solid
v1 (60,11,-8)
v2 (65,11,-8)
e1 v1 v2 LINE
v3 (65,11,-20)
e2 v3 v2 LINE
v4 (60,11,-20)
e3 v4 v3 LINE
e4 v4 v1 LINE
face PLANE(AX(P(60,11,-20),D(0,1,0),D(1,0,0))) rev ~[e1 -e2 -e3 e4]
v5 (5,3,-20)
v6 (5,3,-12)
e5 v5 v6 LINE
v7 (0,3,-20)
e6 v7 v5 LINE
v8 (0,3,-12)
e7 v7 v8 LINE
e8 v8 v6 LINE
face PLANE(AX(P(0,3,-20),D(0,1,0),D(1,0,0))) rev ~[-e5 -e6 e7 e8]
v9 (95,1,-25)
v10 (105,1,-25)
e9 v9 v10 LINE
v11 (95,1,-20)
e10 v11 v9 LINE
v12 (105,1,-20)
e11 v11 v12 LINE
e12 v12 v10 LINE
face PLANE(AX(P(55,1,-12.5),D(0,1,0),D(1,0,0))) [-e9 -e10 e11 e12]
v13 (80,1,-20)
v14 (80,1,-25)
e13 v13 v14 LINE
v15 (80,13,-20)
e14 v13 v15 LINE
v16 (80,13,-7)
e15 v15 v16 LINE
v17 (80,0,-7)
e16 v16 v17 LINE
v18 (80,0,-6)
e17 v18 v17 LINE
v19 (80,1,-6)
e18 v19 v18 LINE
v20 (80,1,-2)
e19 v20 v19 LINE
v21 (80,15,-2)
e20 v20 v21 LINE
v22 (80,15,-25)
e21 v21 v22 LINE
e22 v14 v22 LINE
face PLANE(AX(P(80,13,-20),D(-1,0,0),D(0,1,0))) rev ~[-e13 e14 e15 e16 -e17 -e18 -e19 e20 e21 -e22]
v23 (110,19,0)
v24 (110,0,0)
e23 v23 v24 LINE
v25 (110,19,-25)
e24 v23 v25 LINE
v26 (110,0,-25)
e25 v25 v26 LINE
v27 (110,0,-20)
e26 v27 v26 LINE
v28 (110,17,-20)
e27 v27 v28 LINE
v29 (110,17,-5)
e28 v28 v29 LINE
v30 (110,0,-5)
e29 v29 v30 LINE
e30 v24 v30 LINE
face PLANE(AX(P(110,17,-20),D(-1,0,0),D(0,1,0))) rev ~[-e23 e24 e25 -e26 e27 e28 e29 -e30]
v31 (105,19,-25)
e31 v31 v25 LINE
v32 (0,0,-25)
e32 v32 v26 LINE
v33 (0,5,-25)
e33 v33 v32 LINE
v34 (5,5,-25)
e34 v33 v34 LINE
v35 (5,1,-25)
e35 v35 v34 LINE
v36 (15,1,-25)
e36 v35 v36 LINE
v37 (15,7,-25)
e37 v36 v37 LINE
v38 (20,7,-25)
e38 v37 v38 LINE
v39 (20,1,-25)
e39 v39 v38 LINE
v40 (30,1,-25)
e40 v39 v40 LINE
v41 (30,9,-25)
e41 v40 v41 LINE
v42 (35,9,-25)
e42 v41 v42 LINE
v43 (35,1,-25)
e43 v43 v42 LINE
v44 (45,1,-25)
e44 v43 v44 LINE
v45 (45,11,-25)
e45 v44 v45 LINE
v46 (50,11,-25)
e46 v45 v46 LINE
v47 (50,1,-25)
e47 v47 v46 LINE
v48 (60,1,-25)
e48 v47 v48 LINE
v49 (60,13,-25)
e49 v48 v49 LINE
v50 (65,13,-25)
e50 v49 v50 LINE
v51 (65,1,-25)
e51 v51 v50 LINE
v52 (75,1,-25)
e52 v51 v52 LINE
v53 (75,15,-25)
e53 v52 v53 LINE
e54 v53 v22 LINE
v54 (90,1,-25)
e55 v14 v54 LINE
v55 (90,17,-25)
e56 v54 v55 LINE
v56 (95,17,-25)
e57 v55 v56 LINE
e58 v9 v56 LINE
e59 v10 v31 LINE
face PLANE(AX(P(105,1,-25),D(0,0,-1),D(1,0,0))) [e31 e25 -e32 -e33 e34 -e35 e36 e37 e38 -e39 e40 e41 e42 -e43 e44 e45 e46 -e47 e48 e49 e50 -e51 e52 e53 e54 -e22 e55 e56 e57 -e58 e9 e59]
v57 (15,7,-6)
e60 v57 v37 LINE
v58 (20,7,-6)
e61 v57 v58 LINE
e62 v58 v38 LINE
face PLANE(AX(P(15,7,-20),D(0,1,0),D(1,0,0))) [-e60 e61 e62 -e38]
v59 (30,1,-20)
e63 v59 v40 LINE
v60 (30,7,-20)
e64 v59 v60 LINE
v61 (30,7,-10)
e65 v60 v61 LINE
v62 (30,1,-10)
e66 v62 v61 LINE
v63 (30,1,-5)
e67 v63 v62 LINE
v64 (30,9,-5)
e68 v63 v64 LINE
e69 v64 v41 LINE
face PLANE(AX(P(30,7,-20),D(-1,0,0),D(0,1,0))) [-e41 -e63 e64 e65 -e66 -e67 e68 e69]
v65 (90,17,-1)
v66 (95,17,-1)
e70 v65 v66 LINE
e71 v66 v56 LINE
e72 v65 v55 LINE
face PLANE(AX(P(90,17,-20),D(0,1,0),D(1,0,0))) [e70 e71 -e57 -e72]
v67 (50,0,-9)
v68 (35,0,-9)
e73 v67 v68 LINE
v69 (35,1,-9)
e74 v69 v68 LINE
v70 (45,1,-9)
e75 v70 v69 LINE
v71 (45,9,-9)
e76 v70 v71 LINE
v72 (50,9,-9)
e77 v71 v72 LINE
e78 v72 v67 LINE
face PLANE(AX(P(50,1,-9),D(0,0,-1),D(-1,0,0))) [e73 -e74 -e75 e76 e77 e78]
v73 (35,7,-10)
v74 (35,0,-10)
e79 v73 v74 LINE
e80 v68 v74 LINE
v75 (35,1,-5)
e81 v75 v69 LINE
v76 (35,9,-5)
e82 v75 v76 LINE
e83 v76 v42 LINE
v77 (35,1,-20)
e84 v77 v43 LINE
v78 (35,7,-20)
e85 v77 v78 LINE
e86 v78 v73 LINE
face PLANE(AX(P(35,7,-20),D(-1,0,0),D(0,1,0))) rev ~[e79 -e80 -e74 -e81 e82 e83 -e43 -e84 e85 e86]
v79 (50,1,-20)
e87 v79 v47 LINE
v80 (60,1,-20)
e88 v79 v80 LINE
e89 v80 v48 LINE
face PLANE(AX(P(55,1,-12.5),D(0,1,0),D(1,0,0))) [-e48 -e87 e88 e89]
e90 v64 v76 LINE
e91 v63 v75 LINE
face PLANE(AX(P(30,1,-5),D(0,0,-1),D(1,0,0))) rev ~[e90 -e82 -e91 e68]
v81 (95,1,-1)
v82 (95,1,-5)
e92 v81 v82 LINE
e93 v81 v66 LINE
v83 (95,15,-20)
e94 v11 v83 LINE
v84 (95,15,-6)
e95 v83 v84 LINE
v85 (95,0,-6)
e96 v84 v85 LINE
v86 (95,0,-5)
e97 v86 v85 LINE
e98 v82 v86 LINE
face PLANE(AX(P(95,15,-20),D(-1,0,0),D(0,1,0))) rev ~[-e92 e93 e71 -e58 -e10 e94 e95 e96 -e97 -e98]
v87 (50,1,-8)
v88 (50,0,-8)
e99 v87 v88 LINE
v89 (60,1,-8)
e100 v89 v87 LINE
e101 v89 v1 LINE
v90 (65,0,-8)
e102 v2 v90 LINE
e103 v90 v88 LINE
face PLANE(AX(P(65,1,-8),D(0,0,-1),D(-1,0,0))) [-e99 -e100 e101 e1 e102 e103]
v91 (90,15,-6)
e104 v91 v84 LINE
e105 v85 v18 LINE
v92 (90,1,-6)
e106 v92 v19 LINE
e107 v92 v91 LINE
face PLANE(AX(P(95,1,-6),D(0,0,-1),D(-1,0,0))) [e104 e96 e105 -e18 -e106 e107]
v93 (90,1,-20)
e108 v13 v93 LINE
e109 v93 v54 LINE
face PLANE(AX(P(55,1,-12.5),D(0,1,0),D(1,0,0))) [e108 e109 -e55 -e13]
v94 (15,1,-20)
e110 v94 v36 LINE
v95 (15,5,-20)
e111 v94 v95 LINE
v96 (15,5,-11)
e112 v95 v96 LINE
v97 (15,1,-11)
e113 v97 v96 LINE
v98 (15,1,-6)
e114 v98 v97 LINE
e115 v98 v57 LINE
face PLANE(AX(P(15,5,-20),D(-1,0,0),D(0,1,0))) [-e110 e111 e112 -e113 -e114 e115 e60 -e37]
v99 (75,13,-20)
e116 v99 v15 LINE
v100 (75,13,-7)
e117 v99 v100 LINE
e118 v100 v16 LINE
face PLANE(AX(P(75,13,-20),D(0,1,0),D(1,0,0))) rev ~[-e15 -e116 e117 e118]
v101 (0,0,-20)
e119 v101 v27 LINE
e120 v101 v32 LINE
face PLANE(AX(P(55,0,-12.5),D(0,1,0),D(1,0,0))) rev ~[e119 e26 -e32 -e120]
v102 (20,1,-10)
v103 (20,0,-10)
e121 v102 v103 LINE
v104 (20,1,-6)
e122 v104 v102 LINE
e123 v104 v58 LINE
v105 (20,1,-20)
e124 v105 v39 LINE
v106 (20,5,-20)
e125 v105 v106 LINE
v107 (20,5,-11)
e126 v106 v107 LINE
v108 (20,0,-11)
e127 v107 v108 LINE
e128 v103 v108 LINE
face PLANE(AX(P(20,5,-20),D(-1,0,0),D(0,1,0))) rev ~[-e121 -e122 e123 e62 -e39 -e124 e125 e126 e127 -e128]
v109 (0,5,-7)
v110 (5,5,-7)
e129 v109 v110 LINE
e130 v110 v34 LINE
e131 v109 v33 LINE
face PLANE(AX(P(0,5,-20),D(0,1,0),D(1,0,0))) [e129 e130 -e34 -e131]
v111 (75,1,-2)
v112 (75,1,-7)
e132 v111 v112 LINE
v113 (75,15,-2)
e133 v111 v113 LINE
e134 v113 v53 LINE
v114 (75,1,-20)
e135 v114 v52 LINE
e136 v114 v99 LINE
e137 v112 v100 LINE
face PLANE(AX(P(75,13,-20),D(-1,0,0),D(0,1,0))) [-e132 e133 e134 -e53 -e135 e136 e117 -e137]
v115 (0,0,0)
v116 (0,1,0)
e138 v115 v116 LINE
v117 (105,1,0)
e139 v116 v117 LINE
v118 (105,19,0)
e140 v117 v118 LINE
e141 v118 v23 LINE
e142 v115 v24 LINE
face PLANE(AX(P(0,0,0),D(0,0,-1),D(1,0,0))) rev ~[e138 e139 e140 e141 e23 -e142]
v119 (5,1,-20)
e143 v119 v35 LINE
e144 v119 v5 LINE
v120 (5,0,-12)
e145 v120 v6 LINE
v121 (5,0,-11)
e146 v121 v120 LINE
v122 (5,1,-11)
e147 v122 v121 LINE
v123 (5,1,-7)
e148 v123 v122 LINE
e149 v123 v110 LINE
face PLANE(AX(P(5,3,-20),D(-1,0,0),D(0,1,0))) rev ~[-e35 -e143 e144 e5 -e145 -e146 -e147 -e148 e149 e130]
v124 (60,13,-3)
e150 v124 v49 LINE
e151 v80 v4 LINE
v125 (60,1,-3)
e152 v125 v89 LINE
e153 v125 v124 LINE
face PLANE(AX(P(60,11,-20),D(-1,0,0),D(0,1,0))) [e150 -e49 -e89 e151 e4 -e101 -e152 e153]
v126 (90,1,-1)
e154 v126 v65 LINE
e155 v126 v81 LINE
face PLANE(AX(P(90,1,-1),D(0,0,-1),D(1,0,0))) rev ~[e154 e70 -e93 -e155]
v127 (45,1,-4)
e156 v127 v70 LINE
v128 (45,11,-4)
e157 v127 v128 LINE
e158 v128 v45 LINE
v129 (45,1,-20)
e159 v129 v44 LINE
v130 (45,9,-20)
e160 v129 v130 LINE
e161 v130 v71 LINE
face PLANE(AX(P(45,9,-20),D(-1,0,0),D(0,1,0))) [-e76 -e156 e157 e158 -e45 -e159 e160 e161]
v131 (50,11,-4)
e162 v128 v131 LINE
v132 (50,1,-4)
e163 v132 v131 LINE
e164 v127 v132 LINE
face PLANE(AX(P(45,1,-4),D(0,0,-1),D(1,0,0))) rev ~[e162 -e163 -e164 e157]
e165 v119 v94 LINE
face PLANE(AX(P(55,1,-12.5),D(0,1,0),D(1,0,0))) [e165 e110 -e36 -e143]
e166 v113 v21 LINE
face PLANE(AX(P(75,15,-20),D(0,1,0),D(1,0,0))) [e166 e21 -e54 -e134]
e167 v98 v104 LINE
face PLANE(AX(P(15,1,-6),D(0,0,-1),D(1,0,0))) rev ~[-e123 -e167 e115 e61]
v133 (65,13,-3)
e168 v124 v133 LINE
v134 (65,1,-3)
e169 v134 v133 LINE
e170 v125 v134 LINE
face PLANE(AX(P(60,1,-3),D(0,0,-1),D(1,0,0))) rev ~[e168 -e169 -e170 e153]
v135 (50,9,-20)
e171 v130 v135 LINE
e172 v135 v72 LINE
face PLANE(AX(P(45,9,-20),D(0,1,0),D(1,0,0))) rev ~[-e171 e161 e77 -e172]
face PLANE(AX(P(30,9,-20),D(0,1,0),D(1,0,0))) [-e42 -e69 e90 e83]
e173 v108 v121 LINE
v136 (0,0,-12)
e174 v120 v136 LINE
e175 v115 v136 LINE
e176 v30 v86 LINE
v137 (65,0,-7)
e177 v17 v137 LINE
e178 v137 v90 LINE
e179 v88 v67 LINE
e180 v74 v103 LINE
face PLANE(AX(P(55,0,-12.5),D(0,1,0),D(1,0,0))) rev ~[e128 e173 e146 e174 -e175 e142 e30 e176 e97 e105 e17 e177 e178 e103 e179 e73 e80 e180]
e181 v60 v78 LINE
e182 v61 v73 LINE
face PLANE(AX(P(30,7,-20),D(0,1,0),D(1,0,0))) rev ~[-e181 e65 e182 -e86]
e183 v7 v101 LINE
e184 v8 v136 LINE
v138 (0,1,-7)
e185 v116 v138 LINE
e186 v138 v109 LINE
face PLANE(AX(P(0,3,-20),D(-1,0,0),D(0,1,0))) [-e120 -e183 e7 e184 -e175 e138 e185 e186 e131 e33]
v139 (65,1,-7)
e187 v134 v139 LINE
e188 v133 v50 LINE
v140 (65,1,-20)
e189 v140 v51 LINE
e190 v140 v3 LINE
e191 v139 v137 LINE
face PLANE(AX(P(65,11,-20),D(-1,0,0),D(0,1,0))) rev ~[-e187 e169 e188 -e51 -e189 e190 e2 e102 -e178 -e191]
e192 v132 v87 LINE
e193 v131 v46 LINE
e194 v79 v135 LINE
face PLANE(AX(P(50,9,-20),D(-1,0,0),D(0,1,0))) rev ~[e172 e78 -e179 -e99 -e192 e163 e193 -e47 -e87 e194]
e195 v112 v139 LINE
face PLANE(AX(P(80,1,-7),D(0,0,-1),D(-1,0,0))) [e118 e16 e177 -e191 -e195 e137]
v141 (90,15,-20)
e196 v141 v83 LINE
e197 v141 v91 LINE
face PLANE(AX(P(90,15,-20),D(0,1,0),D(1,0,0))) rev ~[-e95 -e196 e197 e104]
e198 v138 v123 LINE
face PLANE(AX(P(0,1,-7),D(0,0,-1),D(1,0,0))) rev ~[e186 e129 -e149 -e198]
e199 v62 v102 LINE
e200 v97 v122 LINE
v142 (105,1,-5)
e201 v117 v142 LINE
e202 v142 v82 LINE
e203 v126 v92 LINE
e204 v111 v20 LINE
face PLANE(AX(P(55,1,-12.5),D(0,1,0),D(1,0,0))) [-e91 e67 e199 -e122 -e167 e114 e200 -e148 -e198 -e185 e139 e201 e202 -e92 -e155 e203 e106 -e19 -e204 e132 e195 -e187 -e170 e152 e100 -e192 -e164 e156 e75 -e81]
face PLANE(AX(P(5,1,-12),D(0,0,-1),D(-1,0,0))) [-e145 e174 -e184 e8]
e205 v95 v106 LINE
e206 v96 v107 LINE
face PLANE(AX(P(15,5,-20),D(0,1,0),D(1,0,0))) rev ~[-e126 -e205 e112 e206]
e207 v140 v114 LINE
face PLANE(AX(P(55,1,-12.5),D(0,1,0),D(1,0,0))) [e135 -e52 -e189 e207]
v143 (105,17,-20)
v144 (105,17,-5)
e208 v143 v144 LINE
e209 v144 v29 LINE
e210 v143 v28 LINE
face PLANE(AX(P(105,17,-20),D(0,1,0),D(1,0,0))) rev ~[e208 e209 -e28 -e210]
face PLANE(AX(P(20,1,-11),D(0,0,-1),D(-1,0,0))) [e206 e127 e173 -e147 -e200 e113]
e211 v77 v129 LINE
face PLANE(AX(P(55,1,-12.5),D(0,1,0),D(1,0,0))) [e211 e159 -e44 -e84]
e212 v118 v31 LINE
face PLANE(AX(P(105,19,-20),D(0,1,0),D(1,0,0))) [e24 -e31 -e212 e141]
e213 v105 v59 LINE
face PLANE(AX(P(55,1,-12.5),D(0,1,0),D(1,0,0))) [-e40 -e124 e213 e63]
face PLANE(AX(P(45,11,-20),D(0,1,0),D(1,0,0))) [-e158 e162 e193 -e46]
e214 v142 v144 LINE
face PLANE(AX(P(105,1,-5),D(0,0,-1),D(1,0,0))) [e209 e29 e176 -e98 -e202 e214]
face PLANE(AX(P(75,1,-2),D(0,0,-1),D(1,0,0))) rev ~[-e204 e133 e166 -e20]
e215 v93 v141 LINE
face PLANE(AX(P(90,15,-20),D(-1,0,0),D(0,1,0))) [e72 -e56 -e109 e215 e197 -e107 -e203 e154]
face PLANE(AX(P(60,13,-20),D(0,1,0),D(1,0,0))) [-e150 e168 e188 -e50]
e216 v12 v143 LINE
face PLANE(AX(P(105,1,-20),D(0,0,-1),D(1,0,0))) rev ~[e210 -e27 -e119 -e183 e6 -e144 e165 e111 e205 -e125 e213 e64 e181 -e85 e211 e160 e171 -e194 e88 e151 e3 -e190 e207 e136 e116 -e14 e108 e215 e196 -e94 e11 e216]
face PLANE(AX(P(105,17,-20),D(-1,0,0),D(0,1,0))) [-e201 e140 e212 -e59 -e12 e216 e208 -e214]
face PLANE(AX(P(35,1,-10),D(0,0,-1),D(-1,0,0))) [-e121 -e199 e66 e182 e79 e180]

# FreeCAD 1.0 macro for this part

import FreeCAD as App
import Part
import Sketcher
from FreeCAD import Vector

doc = App.newDocument("Part")
body = doc.addObject("PartDesign::Body", "Body")

# Sketch on XZ plane
sketch1 = body.newObject("Sketcher::SketchObject", "Sketch")
sketch1.AttachmentSupport = (doc.getObject("XZ_Plane"), [""])
sketch1.MapMode = "FlatFace"
sketch1.addGeometry(Part.LineSegment(Vector(0, -25, 0), Vector(0, 0, 0)), False)
sketch1.addGeometry(Part.LineSegment(Vector(0, 0, 0), Vector(110, 0, 0)), False)
sketch1.addGeometry(Part.LineSegment(Vector(110, 0, 0), Vector(110, -25, 0)), False)
sketch1.addGeometry(Part.LineSegment(Vector(110, -25, 0), Vector(0, -25, 0)), False)
sketch1.addConstraint(Sketcher.Constraint("Coincident", 0, 2, 1, 1))
sketch1.addConstraint(Sketcher.Constraint("Coincident", 1, 2, 2, 1))
sketch1.addConstraint(Sketcher.Constraint("Coincident", 2, 2, 3, 1))
sketch1.addConstraint(Sketcher.Constraint("Coincident", 3, 2, 0, 1))
sketch1.addConstraint(Sketcher.Constraint("Vertical", 0))
sketch1.addConstraint(Sketcher.Constraint("Horizontal", 1))
sketch1.addConstraint(Sketcher.Constraint("Vertical", 2))
sketch1.addConstraint(Sketcher.Constraint("Horizontal", 3))
sketch1.addConstraint(Sketcher.Constraint("Coincident", 0, 2, -1, 1))
sketch1.addConstraint(Sketcher.Constraint("DistanceX", 1, 1, 1, 2, 110.0))
sketch1.addConstraint(Sketcher.Constraint("DistanceY", 0, 1, 0, 2, 25.0))
pad1 = body.newObject("PartDesign::Pad", "Pad")
pad1.Profile = sketch1
pad1.Length = 1
pad1.Reversed = True

# Sketch on XZ plane
sketch2 = body.newObject("Sketcher::SketchObject", "Sketch001")
sketch2.AttachmentSupport = (doc.getObject("XZ_Plane"), [""])
sketch2.MapMode = "FlatFace"
sketch2.AttachmentOffset = App.Placement(Vector(0, 0, -1), App.Rotation())
sketch2.addGeometry(Part.LineSegment(Vector(0, -25, 0), Vector(0, -20, 0)), False)
sketch2.addGeometry(Part.LineSegment(Vector(0, -20, 0), Vector(5, -20, 0)), False)
sketch2.addGeometry(Part.LineSegment(Vector(5, -20, 0), Vector(5, -25, 0)), False)
sketch2.addGeometry(Part.LineSegment(Vector(5, -25, 0), Vector(0, -25, 0)), False)
sketch2.addGeometry(Part.LineSegment(Vector(0, -12, 0), Vector(0, -7, 0)), False)
sketch2.addGeometry(Part.LineSegment(Vector(0, -7, 0), Vector(5, -7, 0)), False)
sketch2.addGeometry(Part.LineSegment(Vector(5, -7, 0), Vector(5, -12, 0)), False)
sketch2.addGeometry(Part.LineSegment(Vector(5, -12, 0), Vector(0, -12, 0)), False)
sketch2.addConstraint(Sketcher.Constraint("Coincident", 0, 2, 1, 1))
sketch2.addConstraint(Sketcher.Constraint("Coincident", 1, 2, 2, 1))
sketch2.addConstraint(Sketcher.Constraint("Coincident", 2, 2, 3, 1))
sketch2.addConstraint(Sketcher.Constraint("Coincident", 3, 2, 0, 1))
sketch2.addConstraint(Sketcher.Constraint("Coincident", 4, 2, 5, 1))
sketch2.addConstraint(Sketcher.Constraint("Coincident", 5, 2, 6, 1))
sketch2.addConstraint(Sketcher.Constraint("Coincident", 6, 2, 7, 1))
sketch2.addConstraint(Sketcher.Constraint("Coincident", 7, 2, 4, 1))
sketch2.addConstraint(Sketcher.Constraint("Vertical", 0))
sketch2.addConstraint(Sketcher.Constraint("Horizontal", 1))
sketch2.addConstraint(Sketcher.Constraint("Vertical", 2))
sketch2.addConstraint(Sketcher.Constraint("Horizontal", 3))
sketch2.addConstraint(Sketcher.Constraint("Vertical", 4))
sketch2.addConstraint(Sketcher.Constraint("Horizontal", 5))
sketch2.addConstraint(Sketcher.Constraint("Vertical", 6))
sketch2.addConstraint(Sketcher.Constraint("Horizontal", 7))
sketch2.addConstraint(Sketcher.Constraint("PointOnObject", 0, 2, -2))
sketch2.addConstraint(Sketcher.Constraint("PointOnObject", 4, 2, -2))
sketch2.addConstraint(Sketcher.Constraint("Vertical", 2, 2, 5, 2))
sketch2.addConstraint(Sketcher.Constraint("Equal", 7, 0))
sketch2.addConstraint(Sketcher.Constraint("Equal", 2, 4))
sketch2.addConstraint(Sketcher.Constraint("DistanceX", 1, 1, 1, 2, 5.0))
sketch2.addConstraint(Sketcher.Constraint("DistanceY", 0, 2, -1, 1, 20.0))
sketch2.addConstraint(Sketcher.Constraint("DistanceY", 4, 2, -1, 1, 7.0))
pad2 = body.newObject("PartDesign::Pad", "Pad001")
pad2.Profile = sketch2
pad2.Length = 4
pad2.Reversed = True

# Sketch on XZ plane
sketch3 = body.newObject("Sketcher::SketchObject", "Sketch002")
sketch3.AttachmentSupport = (doc.getObject("XZ_Plane"), [""])
sketch3.MapMode = "FlatFace"
sketch3.AttachmentOffset = App.Placement(Vector(0, 0, -1), App.Rotation())
sketch3.addGeometry(Part.LineSegment(Vector(15, -25, 0), Vector(15, -20, 0)), False)
sketch3.addGeometry(Part.LineSegment(Vector(15, -20, 0), Vector(20, -20, 0)), False)
sketch3.addGeometry(Part.LineSegment(Vector(20, -20, 0), Vector(20, -25, 0)), False)
sketch3.addGeometry(Part.LineSegment(Vector(20, -25, 0), Vector(15, -25, 0)), False)
sketch3.addGeometry(Part.LineSegment(Vector(15, -11, 0), Vector(15, -6, 0)), False)
sketch3.addGeometry(Part.LineSegment(Vector(15, -6, 0), Vector(20, -6, 0)), False)
sketch3.addGeometry(Part.LineSegment(Vector(20, -6, 0), Vector(20, -11, 0)), False)
sketch3.addGeometry(Part.LineSegment(Vector(20, -11, 0), Vector(15, -11, 0)), False)
sketch3.addConstraint(Sketcher.Constraint("Coincident", 0, 2, 1, 1))
sketch3.addConstraint(Sketcher.Constraint("Coincident", 1, 2, 2, 1))
sketch3.addConstraint(Sketcher.Constraint("Coincident", 2, 2, 3, 1))
sketch3.addConstraint(Sketcher.Constraint("Coincident", 3, 2, 0, 1))
sketch3.addConstraint(Sketcher.Constraint("Coincident", 4, 2, 5, 1))
sketch3.addConstraint(Sketcher.Constraint("Coincident", 5, 2, 6, 1))
sketch3.addConstraint(Sketcher.Constraint("Coincident", 6, 2, 7, 1))
sketch3.addConstraint(Sketcher.Constraint("Coincident", 7, 2, 4, 1))
sketch3.addConstraint(Sketcher.Constraint("Vertical", 0))
sketch3.addConstraint(Sketcher.Constraint("Horizontal", 1))
sketch3.addConstraint(Sketcher.Constraint("Vertical", 2))
sketch3.addConstraint(Sketcher.Constraint("Horizontal", 3))
sketch3.addConstraint(Sketcher.Constraint("Vertical", 4))
sketch3.addConstraint(Sketcher.Constraint("Horizontal", 5))
sketch3.addConstraint(Sketcher.Constraint("Vertical", 6))
sketch3.addConstraint(Sketcher.Constraint("Horizontal", 7))
sketch3.addConstraint(Sketcher.Constraint("Vertical", 3, 2, 4, 2))
sketch3.addConstraint(Sketcher.Constraint("Vertical", 2, 2, 5, 2))
sketch3.addConstraint(Sketcher.Constraint("Equal", 7, 0))
sketch3.addConstraint(Sketcher.Constraint("Equal", 2, 4))
sketch3.addConstraint(Sketcher.Constraint("DistanceX", 1, 1, 1, 2, 5.0))
sketch3.addConstraint(Sketcher.Constraint("DistanceX", -1, 1, 0, 2, 15.0))
sketch3.addConstraint(Sketcher.Constraint("DistanceY", 0, 2, -1, 1, 20.0))
sketch3.addConstraint(Sketcher.Constraint("DistanceY", 4, 2, -1, 1, 6.0))
pad3 = body.newObject("PartDesign::Pad", "Pad002")
pad3.Profile = sketch3
pad3.Length = 6
pad3.Reversed = True

# Sketch on XZ plane
sketch4 = body.newObject("Sketcher::SketchObject", "Sketch003")
sketch4.AttachmentSupport = (doc.getObject("XZ_Plane"), [""])
sketch4.MapMode = "FlatFace"
sketch4.AttachmentOffset = App.Placement(Vector(0, 0, -1), App.Rotation())
sketch4.addGeometry(Part.LineSegment(Vector(30, -25, 0), Vector(30, -20, 0)), False)
sketch4.addGeometry(Part.LineSegment(Vector(30, -20, 0), Vector(35, -20, 0)), False)
sketch4.addGeometry(Part.LineSegment(Vector(35, -20, 0), Vector(35, -25, 0)), False)
sketch4.addGeometry(Part.LineSegment(Vector(35, -25, 0), Vector(30, -25, 0)), False)
sketch4.addGeometry(Part.LineSegment(Vector(30, -10, 0), Vector(30, -5, 0)), False)
sketch4.addGeometry(Part.LineSegment(Vector(30, -5, 0), Vector(35, -5, 0)), False)
sketch4.addGeometry(Part.LineSegment(Vector(35, -5, 0), Vector(35, -10, 0)), False)
sketch4.addGeometry(Part.LineSegment(Vector(35, -10, 0), Vector(30, -10, 0)), False)
sketch4.addConstraint(Sketcher.Constraint("Coincident", 0, 2, 1, 1))
sketch4.addConstraint(Sketcher.Constraint("Coincident", 1, 2, 2, 1))
sketch4.addConstraint(Sketcher.Constraint("Coincident", 2, 2, 3, 1))
sketch4.addConstraint(Sketcher.Constraint("Coincident", 3, 2, 0, 1))
sketch4.addConstraint(Sketcher.Constraint("Coincident", 4, 2, 5, 1))
sketch4.addConstraint(Sketcher.Constraint("Coincident", 5, 2, 6, 1))
sketch4.addConstraint(Sketcher.Constraint("Coincident", 6, 2, 7, 1))
sketch4.addConstraint(Sketcher.Constraint("Coincident", 7, 2, 4, 1))
sketch4.addConstraint(Sketcher.Constraint("Vertical", 0))
sketch4.addConstraint(Sketcher.Constraint("Horizontal", 1))
sketch4.addConstraint(Sketcher.Constraint("Vertical", 2))
sketch4.addConstraint(Sketcher.Constraint("Horizontal", 3))
sketch4.addConstraint(Sketcher.Constraint("Vertical", 4))
sketch4.addConstraint(Sketcher.Constraint("Horizontal", 5))
sketch4.addConstraint(Sketcher.Constraint("Vertical", 6))
sketch4.addConstraint(Sketcher.Constraint("Horizontal", 7))
sketch4.addConstraint(Sketcher.Constraint("Vertical", 3, 2, 4, 2))
sketch4.addConstraint(Sketcher.Constraint("Vertical", 2, 2, 5, 2))
sketch4.addConstraint(Sketcher.Constraint("Equal", 7, 0))
sketch4.addConstraint(Sketcher.Constraint("Equal", 2, 4))
sketch4.addConstraint(Sketcher.Constraint("DistanceX", 1, 1, 1, 2, 5.0))
sketch4.addConstraint(Sketcher.Constraint("DistanceX", -1, 1, 0, 2, 30.0))
sketch4.addConstraint(Sketcher.Constraint("DistanceY", 0, 2, -1, 1, 20.0))
sketch4.addConstraint(Sketcher.Constraint("DistanceY", 4, 2, -1, 1, 5.0))
pad4 = body.newObject("PartDesign::Pad", "Pad003")
pad4.Profile = sketch4
pad4.Length = 8
pad4.Reversed = True

# Sketch on XZ plane
sketch5 = body.newObject("Sketcher::SketchObject", "Sketch004")
sketch5.AttachmentSupport = (doc.getObject("XZ_Plane"), [""])
sketch5.MapMode = "FlatFace"
sketch5.AttachmentOffset = App.Placement(Vector(0, 0, -1), App.Rotation())
sketch5.addGeometry(Part.LineSegment(Vector(45, -25, 0), Vector(45, -20, 0)), False)
sketch5.addGeometry(Part.LineSegment(Vector(45, -20, 0), Vector(50, -20, 0)), False)
sketch5.addGeometry(Part.LineSegment(Vector(50, -20, 0), Vector(50, -25, 0)), False)
sketch5.addGeometry(Part.LineSegment(Vector(50, -25, 0), Vector(45, -25, 0)), False)
sketch5.addGeometry(Part.LineSegment(Vector(45, -9, 0), Vector(45, -4, 0)), False)
sketch5.addGeometry(Part.LineSegment(Vector(45, -4, 0), Vector(50, -4, 0)), False)
sketch5.addGeometry(Part.LineSegment(Vector(50, -4, 0), Vector(50, -9, 0)), False)
sketch5.addGeometry(Part.LineSegment(Vector(50, -9, 0), Vector(45, -9, 0)), False)
sketch5.addConstraint(Sketcher.Constraint("Coincident", 0, 2, 1, 1))
sketch5.addConstraint(Sketcher.Constraint("Coincident", 1, 2, 2, 1))
sketch5.addConstraint(Sketcher.Constraint("Coincident", 2, 2, 3, 1))
sketch5.addConstraint(Sketcher.Constraint("Coincident", 3, 2, 0, 1))
sketch5.addConstraint(Sketcher.Constraint("Coincident", 4, 2, 5, 1))
sketch5.addConstraint(Sketcher.Constraint("Coincident", 5, 2, 6, 1))
sketch5.addConstraint(Sketcher.Constraint("Coincident", 6, 2, 7, 1))
sketch5.addConstraint(Sketcher.Constraint("Coincident", 7, 2, 4, 1))
sketch5.addConstraint(Sketcher.Constraint("Vertical", 0))
sketch5.addConstraint(Sketcher.Constraint("Horizontal", 1))
sketch5.addConstraint(Sketcher.Constraint("Vertical", 2))
sketch5.addConstraint(Sketcher.Constraint("Horizontal", 3))
sketch5.addConstraint(Sketcher.Constraint("Vertical", 4))
sketch5.addConstraint(Sketcher.Constraint("Horizontal", 5))
sketch5.addConstraint(Sketcher.Constraint("Vertical", 6))
sketch5.addConstraint(Sketcher.Constraint("Horizontal", 7))
sketch5.addConstraint(Sketcher.Constraint("Vertical", 3, 2, 4, 2))
sketch5.addConstraint(Sketcher.Constraint("Vertical", 2, 2, 5, 2))
sketch5.addConstraint(Sketcher.Constraint("Equal", 7, 0))
sketch5.addConstraint(Sketcher.Constraint("Equal", 2, 4))
sketch5.addConstraint(Sketcher.Constraint("DistanceX", 1, 1, 1, 2, 5.0))
sketch5.addConstraint(Sketcher.Constraint("DistanceX", -1, 1, 0, 2, 45.0))
sketch5.addConstraint(Sketcher.Constraint("DistanceY", 0, 2, -1, 1, 20.0))
sketch5.addConstraint(Sketcher.Constraint("DistanceY", 4, 2, -1, 1, 4.0))
pad5 = body.newObject("PartDesign::Pad", "Pad004")
pad5.Profile = sketch5
pad5.Length = 10
pad5.Reversed = True

# Sketch on XZ plane
sketch6 = body.newObject("Sketcher::SketchObject", "Sketch005")
sketch6.AttachmentSupport = (doc.getObject("XZ_Plane"), [""])
sketch6.MapMode = "FlatFace"
sketch6.AttachmentOffset = App.Placement(Vector(0, 0, -1), App.Rotation())
sketch6.addGeometry(Part.LineSegment(Vector(60, -25, 0), Vector(60, -20, 0)), False)
sketch6.addGeometry(Part.LineSegment(Vector(60, -20, 0), Vector(65, -20, 0)), False)
sketch6.addGeometry(Part.LineSegment(Vector(65, -20, 0), Vector(65, -25, 0)), False)
sketch6.addGeometry(Part.LineSegment(Vector(65, -25, 0), Vector(60, -25, 0)), False)
sketch6.addGeometry(Part.LineSegment(Vector(60, -8, 0), Vector(60, -3, 0)), False)
sketch6.addGeometry(Part.LineSegment(Vector(60, -3, 0), Vector(65, -3, 0)), False)
sketch6.addGeometry(Part.LineSegment(Vector(65, -3, 0), Vector(65, -8, 0)), False)
sketch6.addGeometry(Part.LineSegment(Vector(65, -8, 0), Vector(60, -8, 0)), False)
sketch6.addConstraint(Sketcher.Constraint("Coincident", 0, 2, 1, 1))
sketch6.addConstraint(Sketcher.Constraint("Coincident", 1, 2, 2, 1))
sketch6.addConstraint(Sketcher.Constraint("Coincident", 2, 2, 3, 1))
sketch6.addConstraint(Sketcher.Constraint("Coincident", 3, 2, 0, 1))
sketch6.addConstraint(Sketcher.Constraint("Coincident", 4, 2, 5, 1))
sketch6.addConstraint(Sketcher.Constraint("Coincident", 5, 2, 6, 1))
sketch6.addConstraint(Sketcher.Constraint("Coincident", 6, 2, 7, 1))
sketch6.addConstraint(Sketcher.Constraint("Coincident", 7, 2, 4, 1))
sketch6.addConstraint(Sketcher.Constraint("Vertical", 0))
sketch6.addConstraint(Sketcher.Constraint("Horizontal", 1))
sketch6.addConstraint(Sketcher.Constraint("Vertical", 2))
sketch6.addConstraint(Sketcher.Constraint("Horizontal", 3))
sketch6.addConstraint(Sketcher.Constraint("Vertical", 4))
sketch6.addConstraint(Sketcher.Constraint("Horizontal", 5))
sketch6.addConstraint(Sketcher.Constraint("Vertical", 6))
sketch6.addConstraint(Sketcher.Constraint("Horizontal", 7))
sketch6.addConstraint(Sketcher.Constraint("Vertical", 3, 2, 4, 2))
sketch6.addConstraint(Sketcher.Constraint("Vertical", 2, 2, 5, 2))
sketch6.addConstraint(Sketcher.Constraint("Equal", 7, 0))
sketch6.addConstraint(Sketcher.Constraint("Equal", 2, 4))
sketch6.addConstraint(Sketcher.Constraint("DistanceX", 1, 1, 1, 2, 5.0))
sketch6.addConstraint(Sketcher.Constraint("DistanceX", -1, 1, 0, 2, 60.0))
sketch6.addConstraint(Sketcher.Constraint("DistanceY", 0, 2, -1, 1, 20.0))
sketch6.addConstraint(Sketcher.Constraint("DistanceY", 4, 2, -1, 1, 3.0))
pad6 = body.newObject("PartDesign::Pad", "Pad005")
pad6.Profile = sketch6
pad6.Length = 12
pad6.Reversed = True

# Sketch on XZ plane
sketch7 = body.newObject("Sketcher::SketchObject", "Sketch006")
sketch7.AttachmentSupport = (doc.getObject("XZ_Plane"), [""])
sketch7.MapMode = "FlatFace"
sketch7.AttachmentOffset = App.Placement(Vector(0, 0, -1), App.Rotation())
sketch7.addGeometry(Part.LineSegment(Vector(75, -25, 0), Vector(75, -20, 0)), False)
sketch7.addGeometry(Part.LineSegment(Vector(75, -20, 0), Vector(80, -20, 0)), False)
sketch7.addGeometry(Part.LineSegment(Vector(80, -20, 0), Vector(80, -25, 0)), False)
sketch7.addGeometry(Part.LineSegment(Vector(80, -25, 0), Vector(75, -25, 0)), False)
sketch7.addGeometry(Part.LineSegment(Vector(75, -7, 0), Vector(75, -2, 0)), False)
sketch7.addGeometry(Part.LineSegment(Vector(75, -2, 0), Vector(80, -2, 0)), False)
sketch7.addGeometry(Part.LineSegment(Vector(80, -2, 0), Vector(80, -7, 0)), False)
sketch7.addGeometry(Part.LineSegment(Vector(80, -7, 0), Vector(75, -7, 0)), False)
sketch7.addConstraint(Sketcher.Constraint("Coincident", 0, 2, 1, 1))
sketch7.addConstraint(Sketcher.Constraint("Coincident", 1, 2, 2, 1))
sketch7.addConstraint(Sketcher.Constraint("Coincident", 2, 2, 3, 1))
sketch7.addConstraint(Sketcher.Constraint("Coincident", 3, 2, 0, 1))
sketch7.addConstraint(Sketcher.Constraint("Coincident", 4, 2, 5, 1))
sketch7.addConstraint(Sketcher.Constraint("Coincident", 5, 2, 6, 1))
sketch7.addConstraint(Sketcher.Constraint("Coincident", 6, 2, 7, 1))
sketch7.addConstraint(Sketcher.Constraint("Coincident", 7, 2, 4, 1))
sketch7.addConstraint(Sketcher.Constraint("Vertical", 0))
sketch7.addConstraint(Sketcher.Constraint("Horizontal", 1))
sketch7.addConstraint(Sketcher.Constraint("Vertical", 2))
sketch7.addConstraint(Sketcher.Constraint("Horizontal", 3))
sketch7.addConstraint(Sketcher.Constraint("Vertical", 4))
sketch7.addConstraint(Sketcher.Constraint("Horizontal", 5))
sketch7.addConstraint(Sketcher.Constraint("Vertical", 6))
sketch7.addConstraint(Sketcher.Constraint("Horizontal", 7))
sketch7.addConstraint(Sketcher.Constraint("Vertical", 3, 2, 4, 2))
sketch7.addConstraint(Sketcher.Constraint("Vertical", 2, 2, 5, 2))
sketch7.addConstraint(Sketcher.Constraint("Equal", 7, 0))
sketch7.addConstraint(Sketcher.Constraint("Equal", 2, 4))
sketch7.addConstraint(Sketcher.Constraint("DistanceX", 1, 1, 1, 2, 5.0))
sketch7.addConstraint(Sketcher.Constraint("DistanceX", -1, 1, 0, 2, 75.0))
sketch7.addConstraint(Sketcher.Constraint("DistanceY", 0, 2, -1, 1, 20.0))
sketch7.addConstraint(Sketcher.Constraint("DistanceY", 4, 2, -1, 1, 2.0))
pad7 = body.newObject("PartDesign::Pad", "Pad006")
pad7.Profile = sketch7
pad7.Length = 14
pad7.Reversed = True

# Sketch on XZ plane
sketch8 = body.newObject("Sketcher::SketchObject", "Sketch007")
sketch8.AttachmentSupport = (doc.getObject("XZ_Plane"), [""])
sketch8.MapMode = "FlatFace"
sketch8.AttachmentOffset = App.Placement(Vector(0, 0, -1), App.Rotation())
sketch8.addGeometry(Part.LineSegment(Vector(90, -25, 0), Vector(90, -20, 0)), False)
sketch8.addGeometry(Part.LineSegment(Vector(90, -20, 0), Vector(95, -20, 0)), False)
sketch8.addGeometry(Part.LineSegment(Vector(95, -20, 0), Vector(95, -25, 0)), False)
sketch8.addGeometry(Part.LineSegment(Vector(95, -25, 0), Vector(90, -25, 0)), False)
sketch8.addGeometry(Part.LineSegment(Vector(90, -6, 0), Vector(90, -1, 0)), False)
sketch8.addGeometry(Part.LineSegment(Vector(90, -1, 0), Vector(95, -1, 0)), False)
sketch8.addGeometry(Part.LineSegment(Vector(95, -1, 0), Vector(95, -6, 0)), False)
sketch8.addGeometry(Part.LineSegment(Vector(95, -6, 0), Vector(90, -6, 0)), False)
sketch8.addConstraint(Sketcher.Constraint("Coincident", 0, 2, 1, 1))
sketch8.addConstraint(Sketcher.Constraint("Coincident", 1, 2, 2, 1))
sketch8.addConstraint(Sketcher.Constraint("Coincident", 2, 2, 3, 1))
sketch8.addConstraint(Sketcher.Constraint("Coincident", 3, 2, 0, 1))
sketch8.addConstraint(Sketcher.Constraint("Coincident", 4, 2, 5, 1))
sketch8.addConstraint(Sketcher.Constraint("Coincident", 5, 2, 6, 1))
sketch8.addConstraint(Sketcher.Constraint("Coincident", 6, 2, 7, 1))
sketch8.addConstraint(Sketcher.Constraint("Coincident", 7, 2, 4, 1))
sketch8.addConstraint(Sketcher.Constraint("Vertical", 0))
sketch8.addConstraint(Sketcher.Constraint("Horizontal", 1))
sketch8.addConstraint(Sketcher.Constraint("Vertical", 2))
sketch8.addConstraint(Sketcher.Constraint("Horizontal", 3))
sketch8.addConstraint(Sketcher.Constraint("Vertical", 4))
sketch8.addConstraint(Sketcher.Constraint("Horizontal", 5))
sketch8.addConstraint(Sketcher.Constraint("Vertical", 6))
sketch8.addConstraint(Sketcher.Constraint("Horizontal", 7))
sketch8.addConstraint(Sketcher.Constraint("Vertical", 3, 2, 4, 2))
sketch8.addConstraint(Sketcher.Constraint("Vertical", 2, 2, 5, 2))
sketch8.addConstraint(Sketcher.Constraint("Equal", 7, 0))
sketch8.addConstraint(Sketcher.Constraint("Equal", 2, 4))
sketch8.addConstraint(Sketcher.Constraint("DistanceX", 1, 1, 1, 2, 5.0))
sketch8.addConstraint(Sketcher.Constraint("DistanceX", -1, 1, 0, 2, 90.0))
sketch8.addConstraint(Sketcher.Constraint("DistanceY", 0, 2, -1, 1, 20.0))
sketch8.addConstraint(Sketcher.Constraint("DistanceY", 4, 2, -1, 1, 1.0))
pad8 = body.newObject("PartDesign::Pad", "Pad007")
pad8.Profile = sketch8
pad8.Length = 16
pad8.Reversed = True

# Sketch on XZ plane
sketch9 = body.newObject("Sketcher::SketchObject", "Sketch008")
sketch9.AttachmentSupport = (doc.getObject("XZ_Plane"), [""])
sketch9.MapMode = "FlatFace"
sketch9.AttachmentOffset = App.Placement(Vector(0, 0, -1), App.Rotation())
sketch9.addGeometry(Part.LineSegment(Vector(105, -25, 0), Vector(105, -20, 0)), False)
sketch9.addGeometry(Part.LineSegment(Vector(105, -20, 0), Vector(110, -20, 0)), False)
sketch9.addGeometry(Part.LineSegment(Vector(110, -20, 0), Vector(110, -25, 0)), False)
sketch9.addGeometry(Part.LineSegment(Vector(110, -25, 0), Vector(105, -25, 0)), False)
sketch9.addGeometry(Part.LineSegment(Vector(105, -5, 0), Vector(105, 0, 0)), False)
sketch9.addGeometry(Part.LineSegment(Vector(105, 0, 0), Vector(110, 0, 0)), False)
sketch9.addGeometry(Part.LineSegment(Vector(110, 0, 0), Vector(110, -5, 0)), False)
sketch9.addGeometry(Part.LineSegment(Vector(110, -5, 0), Vector(105, -5, 0)), False)
sketch9.addConstraint(Sketcher.Constraint("Coincident", 0, 2, 1, 1))
sketch9.addConstraint(Sketcher.Constraint("Coincident", 1, 2, 2, 1))
sketch9.addConstraint(Sketcher.Constraint("Coincident", 2, 2, 3, 1))
sketch9.addConstraint(Sketcher.Constraint("Coincident", 3, 2, 0, 1))
sketch9.addConstraint(Sketcher.Constraint("Coincident", 4, 2, 5, 1))
sketch9.addConstraint(Sketcher.Constraint("Coincident", 5, 2, 6, 1))
sketch9.addConstraint(Sketcher.Constraint("Coincident", 6, 2, 7, 1))
sketch9.addConstraint(Sketcher.Constraint("Coincident", 7, 2, 4, 1))
sketch9.addConstraint(Sketcher.Constraint("Vertical", 0))
sketch9.addConstraint(Sketcher.Constraint("Horizontal", 1))
sketch9.addConstraint(Sketcher.Constraint("Vertical", 2))
sketch9.addConstraint(Sketcher.Constraint("Horizontal", 3))
sketch9.addConstraint(Sketcher.Constraint("Vertical", 4))
sketch9.addConstraint(Sketcher.Constraint("Horizontal", 5))
sketch9.addConstraint(Sketcher.Constraint("Vertical", 6))
sketch9.addConstraint(Sketcher.Constraint("Horizontal", 7))
sketch9.addConstraint(Sketcher.Constraint("PointOnObject", 4, 2, -1))
sketch9.addConstraint(Sketcher.Constraint("Vertical", 3, 2, 4, 2))
sketch9.addConstraint(Sketcher.Constraint("Vertical", 2, 2, 5, 2))
sketch9.addConstraint(Sketcher.Constraint("Equal", 7, 0))
sketch9.addConstraint(Sketcher.Constraint("Equal", 2, 4))
sketch9.addConstraint(Sketcher.Constraint("DistanceX", 1, 1, 1, 2, 5.0))
sketch9.addConstraint(Sketcher.Constraint("DistanceX", -1, 1, 0, 2, 105.0))
sketch9.addConstraint(Sketcher.Constraint("DistanceY", 0, 2, -1, 1, 20.0))
pad9 = body.newObject("PartDesign::Pad", "Pad008")
pad9.Profile = sketch9
pad9.Length = 18
pad9.Reversed = True

# Sketch on XY plane
sketch10 = body.newObject("Sketcher::SketchObject", "Sketch009")
sketch10.AttachmentSupport = (doc.getObject("XY_Plane"), [""])
sketch10.MapMode = "FlatFace"
sketch10.AttachmentOffset = App.Placement(Vector(0, 0, -20), App.Rotation())
sketch10.addGeometry(Part.LineSegment(Vector(0, 5, 0), Vector(0, 3, 0)), False)
sketch10.addGeometry(Part.LineSegment(Vector(0, 3, 0), Vector(5, 3, 0)), False)
sketch10.addGeometry(Part.LineSegment(Vector(5, 3, 0), Vector(5, 5, 0)), False)
sketch10.addGeometry(Part.LineSegment(Vector(5, 5, 0), Vector(0, 5, 0)), False)
sketch10.addConstraint(Sketcher.Constraint("Coincident", 0, 2, 1, 1))
sketch10.addConstraint(Sketcher.Constraint("Coincident", 1, 2, 2, 1))
sketch10.addConstraint(Sketcher.Constraint("Coincident", 2, 2, 3, 1))
sketch10.addConstraint(Sketcher.Constraint("Coincident", 3, 2, 0, 1))
sketch10.addConstraint(Sketcher.Constraint("Vertical", 0))
sketch10.addConstraint(Sketcher.Constraint("Horizontal", 1))
sketch10.addConstraint(Sketcher.Constraint("Vertical", 2))
sketch10.addConstraint(Sketcher.Constraint("Horizontal", 3))
sketch10.addConstraint(Sketcher.Constraint("PointOnObject", 0, 2, -2))
sketch10.addConstraint(Sketcher.Constraint("DistanceX", 1, 1, 1, 2, 5.0))
sketch10.addConstraint(Sketcher.Constraint("DistanceY", 0, 2, 0, 1, 2.0))
sketch10.addConstraint(Sketcher.Constraint("DistanceY", -1, 1, 0, 2, 3.0))
pad10 = body.newObject("PartDesign::Pad", "Pad009")
pad10.Profile = sketch10
pad10.Length = 8

# Sketch on XY plane
sketch11 = body.newObject("Sketcher::SketchObject", "Sketch010")
sketch11.AttachmentSupport = (doc.getObject("XY_Plane"), [""])
sketch11.MapMode = "FlatFace"
sketch11.AttachmentOffset = App.Placement(Vector(0, 0, -20), App.Rotation())
sketch11.addGeometry(Part.LineSegment(Vector(15, 7, 0), Vector(15, 5, 0)), False)
sketch11.addGeometry(Part.LineSegment(Vector(15, 5, 0), Vector(20, 5, 0)), False)
sketch11.addGeometry(Part.LineSegment(Vector(20, 5, 0), Vector(20, 7, 0)), False)
sketch11.addGeometry(Part.LineSegment(Vector(20, 7, 0), Vector(15, 7, 0)), False)
sketch11.addConstraint(Sketcher.Constraint("Coincident", 0, 2, 1, 1))
sketch11.addConstraint(Sketcher.Constraint("Coincident", 1, 2, 2, 1))
sketch11.addConstraint(Sketcher.Constraint("Coincident", 2, 2, 3, 1))
sketch11.addConstraint(Sketcher.Constraint("Coincident", 3, 2, 0, 1))
sketch11.addConstraint(Sketcher.Constraint("Vertical", 0))
sketch11.addConstraint(Sketcher.Constraint("Horizontal", 1))
sketch11.addConstraint(Sketcher.Constraint("Vertical", 2))
sketch11.addConstraint(Sketcher.Constraint("Horizontal", 3))
sketch11.addConstraint(Sketcher.Constraint("DistanceX", 1, 1, 1, 2, 5.0))
sketch11.addConstraint(Sketcher.Constraint("DistanceY", 0, 2, 0, 1, 2.0))
sketch11.addConstraint(Sketcher.Constraint("DistanceX", -1, 1, 0, 2, 15.0))
sketch11.addConstraint(Sketcher.Constraint("DistanceY", -1, 1, 0, 2, 5.0))
pad11 = body.newObject("PartDesign::Pad", "Pad010")
pad11.Profile = sketch11
pad11.Length = 9

# Sketch on XY plane
sketch12 = body.newObject("Sketcher::SketchObject", "Sketch011")
sketch12.AttachmentSupport = (doc.getObject("XY_Plane"), [""])
sketch12.MapMode = "FlatFace"
sketch12.AttachmentOffset = App.Placement(Vector(0, 0, -20), App.Rotation())
sketch12.addGeometry(Part.LineSegment(Vector(30, 9, 0), Vector(30, 7, 0)), False)
sketch12.addGeometry(Part.LineSegment(Vector(30, 7, 0), Vector(35, 7, 0)), False)
sketch12.addGeometry(Part.LineSegment(Vector(35, 7, 0), Vector(35, 9, 0)), False)
sketch12.addGeometry(Part.LineSegment(Vector(35, 9, 0), Vector(30, 9, 0)), False)
sketch12.addConstraint(Sketcher.Constraint("Coincident", 0, 2, 1, 1))
sketch12.addConstraint(Sketcher.Constraint("Coincident", 1, 2, 2, 1))
sketch12.addConstraint(Sketcher.Constraint("Coincident", 2, 2, 3, 1))
sketch12.addConstraint(Sketcher.Constraint("Coincident", 3, 2, 0, 1))
sketch12.addConstraint(Sketcher.Constraint("Vertical", 0))
sketch12.addConstraint(Sketcher.Constraint("Horizontal", 1))
sketch12.addConstraint(Sketcher.Constraint("Vertical", 2))
sketch12.addConstraint(Sketcher.Constraint("Horizontal", 3))
sketch12.addConstraint(Sketcher.Constraint("DistanceX", 1, 1, 1, 2, 5.0))
sketch12.addConstraint(Sketcher.Constraint("DistanceY", 0, 2, 0, 1, 2.0))
sketch12.addConstraint(Sketcher.Constraint("DistanceX", -1, 1, 0, 2, 30.0))
sketch12.addConstraint(Sketcher.Constraint("DistanceY", -1, 1, 0, 2, 7.0))
pad12 = body.newObject("PartDesign::Pad", "Pad011")
pad12.Profile = sketch12
pad12.Length = 10

# Sketch on XY plane
sketch13 = body.newObject("Sketcher::SketchObject", "Sketch012")
sketch13.AttachmentSupport = (doc.getObject("XY_Plane"), [""])
sketch13.MapMode = "FlatFace"
sketch13.AttachmentOffset = App.Placement(Vector(0, 0, -20), App.Rotation())
sketch13.addGeometry(Part.LineSegment(Vector(45, 11, 0), Vector(45, 9, 0)), False)
sketch13.addGeometry(Part.LineSegment(Vector(45, 9, 0), Vector(50, 9, 0)), False)
sketch13.addGeometry(Part.LineSegment(Vector(50, 9, 0), Vector(50, 11, 0)), False)
sketch13.addGeometry(Part.LineSegment(Vector(50, 11, 0), Vector(45, 11, 0)), False)
sketch13.addConstraint(Sketcher.Constraint("Coincident", 0, 2, 1, 1))
sketch13.addConstraint(Sketcher.Constraint("Coincident", 1, 2, 2, 1))
sketch13.addConstraint(Sketcher.Constraint("Coincident", 2, 2, 3, 1))
sketch13.addConstraint(Sketcher.Constraint("Coincident", 3, 2, 0, 1))
sketch13.addConstraint(Sketcher.Constraint("Vertical", 0))
sketch13.addConstraint(Sketcher.Constraint("Horizontal", 1))
sketch13.addConstraint(Sketcher.Constraint("Vertical", 2))
sketch13.addConstraint(Sketcher.Constraint("Horizontal", 3))
sketch13.addConstraint(Sketcher.Constraint("DistanceX", 1, 1, 1, 2, 5.0))
sketch13.addConstraint(Sketcher.Constraint("DistanceY", 0, 2, 0, 1, 2.0))
sketch13.addConstraint(Sketcher.Constraint("DistanceX", -1, 1, 0, 2, 45.0))
sketch13.addConstraint(Sketcher.Constraint("DistanceY", -1, 1, 0, 2, 9.0))
pad13 = body.newObject("PartDesign::Pad", "Pad012")
pad13.Profile = sketch13
pad13.Length = 11

# Sketch on XY plane
sketch14 = body.newObject("Sketcher::SketchObject", "Sketch013")
sketch14.AttachmentSupport = (doc.getObject("XY_Plane"), [""])
sketch14.MapMode = "FlatFace"
sketch14.AttachmentOffset = App.Placement(Vector(0, 0, -20), App.Rotation())
sketch14.addGeometry(Part.LineSegment(Vector(60, 13, 0), Vector(60, 11, 0)), False)
sketch14.addGeometry(Part.LineSegment(Vector(60, 11, 0), Vector(65, 11, 0)), False)
sketch14.addGeometry(Part.LineSegment(Vector(65, 11, 0), Vector(65, 13, 0)), False)
sketch14.addGeometry(Part.LineSegment(Vector(65, 13, 0), Vector(60, 13, 0)), False)
sketch14.addConstraint(Sketcher.Constraint("Coincident", 0, 2, 1, 1))
sketch14.addConstraint(Sketcher.Constraint("Coincident", 1, 2, 2, 1))
sketch14.addConstraint(Sketcher.Constraint("Coincident", 2, 2, 3, 1))
sketch14.addConstraint(Sketcher.Constraint("Coincident", 3, 2, 0, 1))
sketch14.addConstraint(Sketcher.Constraint("Vertical", 0))
sketch14.addConstraint(Sketcher.Constraint("Horizontal", 1))
sketch14.addConstraint(Sketcher.Constraint("Vertical", 2))
sketch14.addConstraint(Sketcher.Constraint("Horizontal", 3))
sketch14.addConstraint(Sketcher.Constraint("DistanceX", 1, 1, 1, 2, 5.0))
sketch14.addConstraint(Sketcher.Constraint("DistanceY", 0, 2, 0, 1, 2.0))
sketch14.addConstraint(Sketcher.Constraint("DistanceX", -1, 1, 0, 2, 60.0))
sketch14.addConstraint(Sketcher.Constraint("DistanceY", -1, 1, 0, 2, 11.0))
pad14 = body.newObject("PartDesign::Pad", "Pad013")
pad14.Profile = sketch14
pad14.Length = 12

# Sketch on XY plane
sketch15 = body.newObject("Sketcher::SketchObject", "Sketch014")
sketch15.AttachmentSupport = (doc.getObject("XY_Plane"), [""])
sketch15.MapMode = "FlatFace"
sketch15.AttachmentOffset = App.Placement(Vector(0, 0, -20), App.Rotation())
sketch15.addGeometry(Part.LineSegment(Vector(75, 15, 0), Vector(75, 13, 0)), False)
sketch15.addGeometry(Part.LineSegment(Vector(75, 13, 0), Vector(80, 13, 0)), False)
sketch15.addGeometry(Part.LineSegment(Vector(80, 13, 0), Vector(80, 15, 0)), False)
sketch15.addGeometry(Part.LineSegment(Vector(80, 15, 0), Vector(75, 15, 0)), False)
sketch15.addConstraint(Sketcher.Constraint("Coincident", 0, 2, 1, 1))
sketch15.addConstraint(Sketcher.Constraint("Coincident", 1, 2, 2, 1))
sketch15.addConstraint(Sketcher.Constraint("Coincident", 2, 2, 3, 1))
sketch15.addConstraint(Sketcher.Constraint("Coincident", 3, 2, 0, 1))
sketch15.addConstraint(Sketcher.Constraint("Vertical", 0))
sketch15.addConstraint(Sketcher.Constraint("Horizontal", 1))
sketch15.addConstraint(Sketcher.Constraint("Vertical", 2))
sketch15.addConstraint(Sketcher.Constraint("Horizontal", 3))
sketch15.addConstraint(Sketcher.Constraint("DistanceX", 1, 1, 1, 2, 5.0))
sketch15.addConstraint(Sketcher.Constraint("DistanceY", 0, 2, 0, 1, 2.0))
sketch15.addConstraint(Sketcher.Constraint("DistanceX", -1, 1, 0, 2, 75.0))
sketch15.addConstraint(Sketcher.Constraint("DistanceY", -1, 1, 0, 2, 13.0))
pad15 = body.newObject("PartDesign::Pad", "Pad014")
pad15.Profile = sketch15
pad15.Length = 13

# Sketch on XY plane
sketch16 = body.newObject("Sketcher::SketchObject", "Sketch015")
sketch16.AttachmentSupport = (doc.getObject("XY_Plane"), [""])
sketch16.MapMode = "FlatFace"
sketch16.AttachmentOffset = App.Placement(Vector(0, 0, -20), App.Rotation())
sketch16.addGeometry(Part.LineSegment(Vector(90, 17, 0), Vector(90, 15, 0)), False)
sketch16.addGeometry(Part.LineSegment(Vector(90, 15, 0), Vector(95, 15, 0)), False)
sketch16.addGeometry(Part.LineSegment(Vector(95, 15, 0), Vector(95, 17, 0)), False)
sketch16.addGeometry(Part.LineSegment(Vector(95, 17, 0), Vector(90, 17, 0)), False)
sketch16.addConstraint(Sketcher.Constraint("Coincident", 0, 2, 1, 1))
sketch16.addConstraint(Sketcher.Constraint("Coincident", 1, 2, 2, 1))
sketch16.addConstraint(Sketcher.Constraint("Coincident", 2, 2, 3, 1))
sketch16.addConstraint(Sketcher.Constraint("Coincident", 3, 2, 0, 1))
sketch16.addConstraint(Sketcher.Constraint("Vertical", 0))
sketch16.addConstraint(Sketcher.Constraint("Horizontal", 1))
sketch16.addConstraint(Sketcher.Constraint("Vertical", 2))
sketch16.addConstraint(Sketcher.Constraint("Horizontal", 3))
sketch16.addConstraint(Sketcher.Constraint("DistanceX", 1, 1, 1, 2, 5.0))
sketch16.addConstraint(Sketcher.Constraint("DistanceY", 0, 2, 0, 1, 2.0))
sketch16.addConstraint(Sketcher.Constraint("DistanceX", -1, 1, 0, 2, 90.0))
sketch16.addConstraint(Sketcher.Constraint("DistanceY", -1, 1, 0, 2, 15.0))
pad16 = body.newObject("PartDesign::Pad", "Pad015")
pad16.Profile = sketch16
pad16.Length = 14

# Sketch on XY plane
sketch17 = body.newObject("Sketcher::SketchObject", "Sketch016")
sketch17.AttachmentSupport = (doc.getObject("XY_Plane"), [""])
sketch17.MapMode = "FlatFace"
sketch17.AttachmentOffset = App.Placement(Vector(0, 0, -20), App.Rotation())
sketch17.addGeometry(Part.LineSegment(Vector(105, 19, 0), Vector(105, 17, 0)), False)
sketch17.addGeometry(Part.LineSegment(Vector(105, 17, 0), Vector(110, 17, 0)), False)
sketch17.addGeometry(Part.LineSegment(Vector(110, 17, 0), Vector(110, 19, 0)), False)
sketch17.addGeometry(Part.LineSegment(Vector(110, 19, 0), Vector(105, 19, 0)), False)
sketch17.addConstraint(Sketcher.Constraint("Coincident", 0, 2, 1, 1))
sketch17.addConstraint(Sketcher.Constraint("Coincident", 1, 2, 2, 1))
sketch17.addConstraint(Sketcher.Constraint("Coincident", 2, 2, 3, 1))
sketch17.addConstraint(Sketcher.Constraint("Coincident", 3, 2, 0, 1))
sketch17.addConstraint(Sketcher.Constraint("Vertical", 0))
sketch17.addConstraint(Sketcher.Constraint("Horizontal", 1))
sketch17.addConstraint(Sketcher.Constraint("Vertical", 2))
sketch17.addConstraint(Sketcher.Constraint("Horizontal", 3))
sketch17.addConstraint(Sketcher.Constraint("DistanceX", 1, 1, 1, 2, 5.0))
sketch17.addConstraint(Sketcher.Constraint("DistanceY", 0, 2, 0, 1, 2.0))
sketch17.addConstraint(Sketcher.Constraint("DistanceX", -1, 1, 0, 2, 105.0))
sketch17.addConstraint(Sketcher.Constraint("DistanceY", -1, 1, 0, 2, 17.0))
pad17 = body.newObject("PartDesign::Pad", "Pad016")
pad17.Profile = sketch17
pad17.Length = 15

# Sketch on XZ plane
sketch18 = body.newObject("Sketcher::SketchObject", "Sketch017")
sketch18.AttachmentSupport = (doc.getObject("XZ_Plane"), [""])
sketch18.MapMode = "FlatFace"
sketch18.AttachmentOffset = App.Placement(Vector(0, 0, -1), App.Rotation())
sketch18.addGeometry(Part.LineSegment(Vector(110, -20, 0), Vector(0, -20, 0)), False)
sketch18.addGeometry(Part.LineSegment(Vector(0, -20, 0), Vector(0, -12, 0)), False)
sketch18.addGeometry(Part.LineSegment(Vector(0, -12, 0), Vector(5, -12, 0)), False)
sketch18.addGeometry(Part.LineSegment(Vector(5, -12, 0), Vector(5, -11, 0)), False)
sketch18.addGeometry(Part.LineSegment(Vector(5, -11, 0), Vector(20, -11, 0)), False)
sketch18.addGeometry(Part.LineSegment(Vector(20, -11, 0), Vector(20, -10, 0)), False)
sketch18.addGeometry(Part.LineSegment(Vector(20, -10, 0), Vector(35, -10, 0)), False)
sketch18.addGeometry(Part.LineSegment(Vector(35, -10, 0), Vector(35, -9, 0)), False)
sketch18.addGeometry(Part.LineSegment(Vector(35, -9, 0), Vector(50, -9, 0)), False)
sketch18.addGeometry(Part.LineSegment(Vector(50, -9, 0), Vector(50, -8, 0)), False)
sketch18.addGeometry(Part.LineSegment(Vector(50, -8, 0), Vector(65, -8, 0)), False)
sketch18.addGeometry(Part.LineSegment(Vector(65, -8, 0), Vector(65, -7, 0)), False)
sketch18.addGeometry(Part.LineSegment(Vector(65, -7, 0), Vector(80, -7, 0)), False)
sketch18.addGeometry(Part.LineSegment(Vector(80, -7, 0), Vector(80, -6, 0)), False)
sketch18.addGeometry(Part.LineSegment(Vector(80, -6, 0), Vector(95, -6, 0)), False)
sketch18.addGeometry(Part.LineSegment(Vector(95, -6, 0), Vector(95, -5, 0)), False)
sketch18.addGeometry(Part.LineSegment(Vector(95, -5, 0), Vector(110, -5, 0)), False)
sketch18.addGeometry(Part.LineSegment(Vector(110, -5, 0), Vector(110, -20, 0)), False)
sketch18.addConstraint(Sketcher.Constraint("Coincident", 0, 2, 1, 1))
sketch18.addConstraint(Sketcher.Constraint("Coincident", 1, 2, 2, 1))
sketch18.addConstraint(Sketcher.Constraint("Coincident", 2, 2, 3, 1))
sketch18.addConstraint(Sketcher.Constraint("Coincident", 3, 2, 4, 1))
sketch18.addConstraint(Sketcher.Constraint("Coincident", 4, 2, 5, 1))
sketch18.addConstraint(Sketcher.Constraint("Coincident", 5, 2, 6, 1))
sketch18.addConstraint(Sketcher.Constraint("Coincident", 6, 2, 7, 1))
sketch18.addConstraint(Sketcher.Constraint("Coincident", 7, 2, 8, 1))
sketch18.addConstraint(Sketcher.Constraint("Coincident", 8, 2, 9, 1))
sketch18.addConstraint(Sketcher.Constraint("Coincident", 9, 2, 10, 1))
sketch18.addConstraint(Sketcher.Constraint("Coincident", 10, 2, 11, 1))
sketch18.addConstraint(Sketcher.Constraint("Coincident", 11, 2, 12, 1))
sketch18.addConstraint(Sketcher.Constraint("Coincident", 12, 2, 13, 1))
sketch18.addConstraint(Sketcher.Constraint("Coincident", 13, 2, 14, 1))
sketch18.addConstraint(Sketcher.Constraint("Coincident", 14, 2, 15, 1))
sketch18.addConstraint(Sketcher.Constraint("Coincident", 15, 2, 16, 1))
sketch18.addConstraint(Sketcher.Constraint("Coincident", 16, 2, 17, 1))
sketch18.addConstraint(Sketcher.Constraint("Coincident", 17, 2, 0, 1))
sketch18.addConstraint(Sketcher.Constraint("Horizontal", 0))
sketch18.addConstraint(Sketcher.Constraint("Vertical", 1))
sketch18.addConstraint(Sketcher.Constraint("Horizontal", 2))
sketch18.addConstraint(Sketcher.Constraint("Vertical", 3))
sketch18.addConstraint(Sketcher.Constraint("Horizontal", 4))
sketch18.addConstraint(Sketcher.Constraint("Vertical", 5))
sketch18.addConstraint(Sketcher.Constraint("Horizontal", 6))
sketch18.addConstraint(Sketcher.Constraint("Vertical", 7))
sketch18.addConstraint(Sketcher.Constraint("Horizontal", 8))
sketch18.addConstraint(Sketcher.Constraint("Vertical", 9))
sketch18.addConstraint(Sketcher.Constraint("Horizontal", 10))
sketch18.addConstraint(Sketcher.Constraint("Vertical", 11))
sketch18.addConstraint(Sketcher.Constraint("Horizontal", 12))
sketch18.addConstraint(Sketcher.Constraint("Vertical", 13))
sketch18.addConstraint(Sketcher.Constraint("Horizontal", 14))
sketch18.addConstraint(Sketcher.Constraint("Vertical", 15))
sketch18.addConstraint(Sketcher.Constraint("Horizontal", 16))
sketch18.addConstraint(Sketcher.Constraint("Vertical", 17))
sketch18.addConstraint(Sketcher.Constraint("PointOnObject", 0, 2, -2))
sketch18.addConstraint(Sketcher.Constraint("Equal", 4, 6))
sketch18.addConstraint(Sketcher.Constraint("Equal", 6, 8))
sketch18.addConstraint(Sketcher.Constraint("Equal", 8, 10))
sketch18.addConstraint(Sketcher.Constraint("Equal", 10, 12))
sketch18.addConstraint(Sketcher.Constraint("Equal", 12, 14))
sketch18.addConstraint(Sketcher.Constraint("Equal", 14, 16))
sketch18.addConstraint(Sketcher.Constraint("Equal", 3, 5))
sketch18.addConstraint(Sketcher.Constraint("Equal", 5, 7))
sketch18.addConstraint(Sketcher.Constraint("Equal", 7, 9))
sketch18.addConstraint(Sketcher.Constraint("Equal", 9, 11))
sketch18.addConstraint(Sketcher.Constraint("Equal", 11, 13))
sketch18.addConstraint(Sketcher.Constraint("Equal", 13, 15))
sketch18.addConstraint(Sketcher.Constraint("Equal", 16, 17))
sketch18.addConstraint(Sketcher.Constraint("DistanceX", 0, 2, 0, 1, 110.0))
sketch18.addConstraint(Sketcher.Constraint("DistanceX", 2, 1, 2, 2, 5.0))
sketch18.addConstraint(Sketcher.Constraint("DistanceY", 1, 1, 1, 2, 8.0))
sketch18.addConstraint(Sketcher.Constraint("DistanceY", 0, 2, -1, 1, 20.0))
pocket1 = body.newObject("PartDesign::Pocket", "Pocket")
pocket1.Profile = sketch18
pocket1.Type = "ThroughAll"
pocket1.Reversed = True

doc.recompute()
